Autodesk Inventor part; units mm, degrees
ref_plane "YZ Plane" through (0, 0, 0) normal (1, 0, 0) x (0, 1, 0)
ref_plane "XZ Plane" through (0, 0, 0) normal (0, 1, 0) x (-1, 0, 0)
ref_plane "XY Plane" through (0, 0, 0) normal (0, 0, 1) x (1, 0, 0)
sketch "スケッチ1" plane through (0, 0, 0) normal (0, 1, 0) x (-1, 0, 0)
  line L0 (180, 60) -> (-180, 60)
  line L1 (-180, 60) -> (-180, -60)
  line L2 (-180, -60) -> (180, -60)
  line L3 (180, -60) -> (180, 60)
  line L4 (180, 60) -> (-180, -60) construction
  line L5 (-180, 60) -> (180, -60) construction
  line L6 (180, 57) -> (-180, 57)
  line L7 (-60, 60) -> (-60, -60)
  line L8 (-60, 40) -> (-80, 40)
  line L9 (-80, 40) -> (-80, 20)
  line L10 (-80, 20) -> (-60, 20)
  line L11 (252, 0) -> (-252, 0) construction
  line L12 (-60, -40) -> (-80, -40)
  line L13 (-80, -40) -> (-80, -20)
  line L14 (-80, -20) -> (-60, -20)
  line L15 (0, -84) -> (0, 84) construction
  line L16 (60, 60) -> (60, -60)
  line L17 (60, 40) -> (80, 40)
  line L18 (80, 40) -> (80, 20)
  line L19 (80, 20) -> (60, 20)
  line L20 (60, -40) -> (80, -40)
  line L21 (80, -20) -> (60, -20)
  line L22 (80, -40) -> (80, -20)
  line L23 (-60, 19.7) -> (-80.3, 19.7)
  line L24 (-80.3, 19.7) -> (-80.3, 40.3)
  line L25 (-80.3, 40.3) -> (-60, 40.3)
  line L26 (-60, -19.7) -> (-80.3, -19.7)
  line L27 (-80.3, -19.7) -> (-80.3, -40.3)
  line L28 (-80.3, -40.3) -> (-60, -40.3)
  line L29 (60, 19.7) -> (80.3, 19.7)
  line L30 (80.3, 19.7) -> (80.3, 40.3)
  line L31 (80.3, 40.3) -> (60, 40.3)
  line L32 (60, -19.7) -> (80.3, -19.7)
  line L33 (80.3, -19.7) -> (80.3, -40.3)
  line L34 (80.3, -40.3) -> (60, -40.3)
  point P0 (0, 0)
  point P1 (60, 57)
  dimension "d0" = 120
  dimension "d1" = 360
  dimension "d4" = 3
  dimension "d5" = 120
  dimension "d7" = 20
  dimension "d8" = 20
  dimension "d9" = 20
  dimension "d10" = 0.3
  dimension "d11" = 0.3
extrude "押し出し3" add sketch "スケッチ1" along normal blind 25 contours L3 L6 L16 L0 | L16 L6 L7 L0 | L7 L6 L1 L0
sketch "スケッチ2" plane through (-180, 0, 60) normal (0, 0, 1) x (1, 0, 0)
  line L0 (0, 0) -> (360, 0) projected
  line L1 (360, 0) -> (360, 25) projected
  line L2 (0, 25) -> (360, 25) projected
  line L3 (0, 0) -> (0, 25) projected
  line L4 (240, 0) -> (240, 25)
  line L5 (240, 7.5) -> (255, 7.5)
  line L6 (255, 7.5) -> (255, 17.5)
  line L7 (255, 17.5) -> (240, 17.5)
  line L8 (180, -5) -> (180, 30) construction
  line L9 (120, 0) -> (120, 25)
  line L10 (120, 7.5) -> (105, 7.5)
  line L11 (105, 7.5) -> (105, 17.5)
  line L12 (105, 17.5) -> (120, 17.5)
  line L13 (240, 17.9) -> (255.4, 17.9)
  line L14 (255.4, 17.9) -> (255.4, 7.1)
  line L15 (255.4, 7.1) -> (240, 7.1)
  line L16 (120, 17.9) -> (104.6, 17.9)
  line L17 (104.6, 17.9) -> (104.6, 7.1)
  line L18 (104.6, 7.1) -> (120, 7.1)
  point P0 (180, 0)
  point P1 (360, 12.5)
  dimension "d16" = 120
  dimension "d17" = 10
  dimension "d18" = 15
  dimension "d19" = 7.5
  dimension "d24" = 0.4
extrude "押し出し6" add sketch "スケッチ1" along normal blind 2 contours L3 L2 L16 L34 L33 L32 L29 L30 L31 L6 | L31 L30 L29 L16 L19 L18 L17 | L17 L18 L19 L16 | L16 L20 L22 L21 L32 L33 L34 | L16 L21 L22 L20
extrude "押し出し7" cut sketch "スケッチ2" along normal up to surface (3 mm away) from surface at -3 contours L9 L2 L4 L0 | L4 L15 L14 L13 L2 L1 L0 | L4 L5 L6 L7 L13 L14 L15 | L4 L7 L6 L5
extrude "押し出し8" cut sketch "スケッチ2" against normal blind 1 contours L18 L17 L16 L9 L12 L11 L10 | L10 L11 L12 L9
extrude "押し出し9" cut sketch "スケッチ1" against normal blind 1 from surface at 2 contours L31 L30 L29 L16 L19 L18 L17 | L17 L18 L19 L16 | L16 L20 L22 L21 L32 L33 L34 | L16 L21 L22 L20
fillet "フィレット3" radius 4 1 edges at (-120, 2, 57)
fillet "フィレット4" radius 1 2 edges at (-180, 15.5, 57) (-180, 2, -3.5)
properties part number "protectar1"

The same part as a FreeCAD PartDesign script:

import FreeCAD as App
import Part
import Sketcher
Q = App.Units.Quantity


def edges_at(feature, points):
    """Names of the edges that pass closest to the given points."""
    edges = feature.Shape.Edges
    near = lambda p: min(range(len(edges)), key=lambda i: edges[i].distToShape(Part.Vertex(*p))[0])
    return sorted({f"Edge{near(p) + 1}" for p in points})

doc = App.newDocument("Part")
body = doc.addObject("PartDesign::Body", "Body")

sketch1 = body.newObject("Sketcher::SketchObject", "Sketch")
sketch1.AttachmentSupport = (doc.getObject("XZ_Plane"), [""])
sketch1.MapMode = "FlatFace"
sketch1.addGeometry([
    Part.LineSegment(App.Vector(-180, 57, 0), App.Vector(-180, 60, 0)),
    Part.LineSegment(App.Vector(-180, 60, 0), App.Vector(180, 60, 0)),
    Part.LineSegment(App.Vector(180, 60, 0), App.Vector(180, 57, 0)),
    Part.LineSegment(App.Vector(180, 57, 0), App.Vector(-180, 57, 0)),
], False)
sketch1.addConstraint([
    Sketcher.Constraint("Coincident", 0, 2, 1, 1),
    Sketcher.Constraint("Coincident", 1, 2, 2, 1),
    Sketcher.Constraint("Coincident", 2, 2, 3, 1),
    Sketcher.Constraint("Coincident", 3, 2, 0, 1),
    Sketcher.Constraint("Vertical", 0),
    Sketcher.Constraint("Horizontal", 1),
    Sketcher.Constraint("Vertical", 2),
    Sketcher.Constraint("Horizontal", 3),
    Sketcher.Constraint("DistanceX", 1, 1, 1, 2, Q("360 mm")),
    Sketcher.Constraint("DistanceY", 0, 1, 0, 2, Q("3 mm")),
    Sketcher.Constraint("DistanceX", 0, 2, -1, 1, Q("180 mm")),
    Sketcher.Constraint("DistanceY", -1, 1, 0, 2, Q("60 mm")),
])
pad1 = body.newObject("PartDesign::Pad", "Pad")
pad1.Profile = sketch1
pad1.Length = 25
pad1.Reversed = True

sketch2 = body.newObject("Sketcher::SketchObject", "Sketch001")
sketch2.AttachmentSupport = (doc.getObject("XZ_Plane"), [""])
sketch2.MapMode = "FlatFace"
sketch2.addGeometry([
    Part.LineSegment(App.Vector(-180, -60, 0), App.Vector(-180, 57, 0)),
    Part.LineSegment(App.Vector(-180, 57, 0), App.Vector(-60, 57, 0)),
    Part.LineSegment(App.Vector(-60, 57, 0), App.Vector(-60, -60, 0)),
    Part.LineSegment(App.Vector(-60, -60, 0), App.Vector(-180, -60, 0)),
], False)
sketch2.addConstraint([
    Sketcher.Constraint("Coincident", 0, 2, 1, 1),
    Sketcher.Constraint("Coincident", 1, 2, 2, 1),
    Sketcher.Constraint("Coincident", 2, 2, 3, 1),
    Sketcher.Constraint("Coincident", 3, 2, 0, 1),
    Sketcher.Constraint("Vertical", 0),
    Sketcher.Constraint("Horizontal", 1),
    Sketcher.Constraint("Vertical", 2),
    Sketcher.Constraint("Horizontal", 3),
    Sketcher.Constraint("DistanceX", 1, 1, 1, 2, Q("120 mm")),
    Sketcher.Constraint("DistanceY", 0, 1, 0, 2, Q("117 mm")),
    Sketcher.Constraint("DistanceX", 0, 2, -1, 1, Q("180 mm")),
    Sketcher.Constraint("DistanceY", -1, 1, 0, 2, Q("57 mm")),
])
pad2 = body.newObject("PartDesign::Pad", "Pad001")
pad2.Profile = sketch2
pad2.Length = 2
pad2.Reversed = True

sketch3 = body.newObject("Sketcher::SketchObject", "Sketch002")
sketch3.AttachmentSupport = (doc.getObject("XY_Plane"), [""])
sketch3.MapMode = "FlatFace"
sketch3.AttachmentOffset = App.Placement(App.Vector(0, 0, 57), App.Rotation())
sketch3.addGeometry([
    Part.LineSegment(App.Vector(-60, 0, 0), App.Vector(180, 0, 0)),
    Part.LineSegment(App.Vector(180, 0, 0), App.Vector(180, 25, 0)),
    Part.LineSegment(App.Vector(180, 25, 0), App.Vector(-60, 25, 0)),
    Part.LineSegment(App.Vector(-60, 25, 0), App.Vector(-60, 0, 0)),
], False)
sketch3.addConstraint([
    Sketcher.Constraint("Coincident", 0, 2, 1, 1),
    Sketcher.Constraint("Coincident", 1, 2, 2, 1),
    Sketcher.Constraint("Coincident", 2, 2, 3, 1),
    Sketcher.Constraint("Coincident", 3, 2, 0, 1),
    Sketcher.Constraint("Horizontal", 0),
    Sketcher.Constraint("Vertical", 1),
    Sketcher.Constraint("Horizontal", 2),
    Sketcher.Constraint("Vertical", 3),
    Sketcher.Constraint("PointOnObject", 0, 2, -1),
    Sketcher.Constraint("DistanceX", 0, 1, 0, 2, Q("240 mm")),
    Sketcher.Constraint("DistanceY", 1, 1, 1, 2, Q("25 mm")),
    Sketcher.Constraint("DistanceX", -1, 1, 0, 2, Q("180 mm")),
])
pocket1 = body.newObject("PartDesign::Pocket", "Pocket")
pocket1.Profile = sketch3
pocket1.Length = 3
pocket1.Reversed = True

sketch4 = body.newObject("Sketcher::SketchObject", "Sketch003")
sketch4.AttachmentSupport = (doc.getObject("XY_Plane"), [""])
sketch4.MapMode = "FlatFace"
sketch4.AttachmentOffset = App.Placement(App.Vector(0, 0, 60), App.Rotation())
sketch4.addGeometry([
    Part.LineSegment(App.Vector(-75.4, 7.1, 0), App.Vector(-60, 7.1, 0)),
    Part.LineSegment(App.Vector(-60, 7.1, 0), App.Vector(-60, 17.9, 0)),
    Part.LineSegment(App.Vector(-60, 17.9, 0), App.Vector(-75.4, 17.9, 0)),
    Part.LineSegment(App.Vector(-75.4, 17.9, 0), App.Vector(-75.4, 7.1, 0)),
], False)
sketch4.addConstraint([
    Sketcher.Constraint("Coincident", 0, 2, 1, 1),
    Sketcher.Constraint("Coincident", 1, 2, 2, 1),
    Sketcher.Constraint("Coincident", 2, 2, 3, 1),
    Sketcher.Constraint("Coincident", 3, 2, 0, 1),
    Sketcher.Constraint("Horizontal", 0),
    Sketcher.Constraint("Vertical", 1),
    Sketcher.Constraint("Horizontal", 2),
    Sketcher.Constraint("Vertical", 3),
    Sketcher.Constraint("DistanceX", 0, 1, 0, 2, Q("15.4 mm")),
    Sketcher.Constraint("DistanceY", 1, 1, 1, 2, Q("10.8 mm")),
    Sketcher.Constraint("DistanceX", 0, 2, -1, 1, Q("60 mm")),
    Sketcher.Constraint("DistanceY", -1, 1, 0, 2, Q("7.1 mm")),
])
pocket2 = body.newObject("PartDesign::Pocket", "Pocket001")
pocket2.Profile = sketch4
pocket2.Length = 1

sketch5 = body.newObject("Sketcher::SketchObject", "Sketch004")
sketch5.AttachmentSupport = (doc.getObject("XZ_Plane"), [""])
sketch5.MapMode = "FlatFace"
sketch5.AttachmentOffset = App.Placement(App.Vector(0, 0, -2), App.Rotation())
sketch5.addGeometry([
    Part.LineSegment(App.Vector(-80.3, 40.3, 0), App.Vector(-60, 40.3, 0)),
    Part.LineSegment(App.Vector(-60, 40.3, 0), App.Vector(-60, 19.7, 0)),
    Part.LineSegment(App.Vector(-60, 19.7, 0), App.Vector(-80.3, 19.7, 0)),
    Part.LineSegment(App.Vector(-80.3, 19.7, 0), App.Vector(-80.3, 40.3, 0)),
    Part.LineSegment(App.Vector(-60, -40.3, 0), App.Vector(-80.3, -40.3, 0)),
    Part.LineSegment(App.Vector(-80.3, -40.3, 0), App.Vector(-80.3, -19.7, 0)),
    Part.LineSegment(App.Vector(-80.3, -19.7, 0), App.Vector(-60, -19.7, 0)),
    Part.LineSegment(App.Vector(-60, -19.7, 0), App.Vector(-60, -40.3, 0)),
], False)
sketch5.addConstraint([
    Sketcher.Constraint("Coincident", 0, 2, 1, 1),
    Sketcher.Constraint("Coincident", 1, 2, 2, 1),
    Sketcher.Constraint("Coincident", 2, 2, 3, 1),
    Sketcher.Constraint("Coincident", 3, 2, 0, 1),
    Sketcher.Constraint("Coincident", 4, 2, 5, 1),
    Sketcher.Constraint("Coincident", 5, 2, 6, 1),
    Sketcher.Constraint("Coincident", 6, 2, 7, 1),
    Sketcher.Constraint("Coincident", 7, 2, 4, 1),
    Sketcher.Constraint("Horizontal", 0),
    Sketcher.Constraint("Vertical", 1),
    Sketcher.Constraint("Horizontal", 2),
    Sketcher.Constraint("Vertical", 3),
    Sketcher.Constraint("Horizontal", 4),
    Sketcher.Constraint("Vertical", 5),
    Sketcher.Constraint("Horizontal", 6),
    Sketcher.Constraint("Vertical", 7),
    Sketcher.Constraint("Symmetric", 3, 2, 4, 2, -1),
    Sketcher.Constraint("Symmetric", 1, 2, 6, 2, -1),
    Sketcher.Constraint("DistanceX", 0, 1, 0, 2, Q("20.3 mm")),
    Sketcher.Constraint("DistanceY", 1, 2, 1, 1, Q("20.6 mm")),
    Sketcher.Constraint("DistanceX", 0, 2, -1, 1, Q("60 mm")),
    Sketcher.Constraint("DistanceY", 4, 2, 2, 2, Q("60 mm")),
])
pocket3 = body.newObject("PartDesign::Pocket", "Pocket002")
pocket3.Profile = sketch5
pocket3.Length = 1
pocket3.Reversed = True
doc.recompute()

fillet = body.newObject("PartDesign::Fillet", "Fillet")
fillet.Base = (pocket3, edges_at(pocket3, [(-120, 2, 57)]))
fillet.Radius = 4
doc.recompute()

fillet2 = body.newObject("PartDesign::Fillet", "Fillet001")
fillet2.Base = (fillet, edges_at(fillet, [(-180, 15.5, 57), (-180, 2, -3.5)]))
fillet2.Radius = 1

doc.recompute()
